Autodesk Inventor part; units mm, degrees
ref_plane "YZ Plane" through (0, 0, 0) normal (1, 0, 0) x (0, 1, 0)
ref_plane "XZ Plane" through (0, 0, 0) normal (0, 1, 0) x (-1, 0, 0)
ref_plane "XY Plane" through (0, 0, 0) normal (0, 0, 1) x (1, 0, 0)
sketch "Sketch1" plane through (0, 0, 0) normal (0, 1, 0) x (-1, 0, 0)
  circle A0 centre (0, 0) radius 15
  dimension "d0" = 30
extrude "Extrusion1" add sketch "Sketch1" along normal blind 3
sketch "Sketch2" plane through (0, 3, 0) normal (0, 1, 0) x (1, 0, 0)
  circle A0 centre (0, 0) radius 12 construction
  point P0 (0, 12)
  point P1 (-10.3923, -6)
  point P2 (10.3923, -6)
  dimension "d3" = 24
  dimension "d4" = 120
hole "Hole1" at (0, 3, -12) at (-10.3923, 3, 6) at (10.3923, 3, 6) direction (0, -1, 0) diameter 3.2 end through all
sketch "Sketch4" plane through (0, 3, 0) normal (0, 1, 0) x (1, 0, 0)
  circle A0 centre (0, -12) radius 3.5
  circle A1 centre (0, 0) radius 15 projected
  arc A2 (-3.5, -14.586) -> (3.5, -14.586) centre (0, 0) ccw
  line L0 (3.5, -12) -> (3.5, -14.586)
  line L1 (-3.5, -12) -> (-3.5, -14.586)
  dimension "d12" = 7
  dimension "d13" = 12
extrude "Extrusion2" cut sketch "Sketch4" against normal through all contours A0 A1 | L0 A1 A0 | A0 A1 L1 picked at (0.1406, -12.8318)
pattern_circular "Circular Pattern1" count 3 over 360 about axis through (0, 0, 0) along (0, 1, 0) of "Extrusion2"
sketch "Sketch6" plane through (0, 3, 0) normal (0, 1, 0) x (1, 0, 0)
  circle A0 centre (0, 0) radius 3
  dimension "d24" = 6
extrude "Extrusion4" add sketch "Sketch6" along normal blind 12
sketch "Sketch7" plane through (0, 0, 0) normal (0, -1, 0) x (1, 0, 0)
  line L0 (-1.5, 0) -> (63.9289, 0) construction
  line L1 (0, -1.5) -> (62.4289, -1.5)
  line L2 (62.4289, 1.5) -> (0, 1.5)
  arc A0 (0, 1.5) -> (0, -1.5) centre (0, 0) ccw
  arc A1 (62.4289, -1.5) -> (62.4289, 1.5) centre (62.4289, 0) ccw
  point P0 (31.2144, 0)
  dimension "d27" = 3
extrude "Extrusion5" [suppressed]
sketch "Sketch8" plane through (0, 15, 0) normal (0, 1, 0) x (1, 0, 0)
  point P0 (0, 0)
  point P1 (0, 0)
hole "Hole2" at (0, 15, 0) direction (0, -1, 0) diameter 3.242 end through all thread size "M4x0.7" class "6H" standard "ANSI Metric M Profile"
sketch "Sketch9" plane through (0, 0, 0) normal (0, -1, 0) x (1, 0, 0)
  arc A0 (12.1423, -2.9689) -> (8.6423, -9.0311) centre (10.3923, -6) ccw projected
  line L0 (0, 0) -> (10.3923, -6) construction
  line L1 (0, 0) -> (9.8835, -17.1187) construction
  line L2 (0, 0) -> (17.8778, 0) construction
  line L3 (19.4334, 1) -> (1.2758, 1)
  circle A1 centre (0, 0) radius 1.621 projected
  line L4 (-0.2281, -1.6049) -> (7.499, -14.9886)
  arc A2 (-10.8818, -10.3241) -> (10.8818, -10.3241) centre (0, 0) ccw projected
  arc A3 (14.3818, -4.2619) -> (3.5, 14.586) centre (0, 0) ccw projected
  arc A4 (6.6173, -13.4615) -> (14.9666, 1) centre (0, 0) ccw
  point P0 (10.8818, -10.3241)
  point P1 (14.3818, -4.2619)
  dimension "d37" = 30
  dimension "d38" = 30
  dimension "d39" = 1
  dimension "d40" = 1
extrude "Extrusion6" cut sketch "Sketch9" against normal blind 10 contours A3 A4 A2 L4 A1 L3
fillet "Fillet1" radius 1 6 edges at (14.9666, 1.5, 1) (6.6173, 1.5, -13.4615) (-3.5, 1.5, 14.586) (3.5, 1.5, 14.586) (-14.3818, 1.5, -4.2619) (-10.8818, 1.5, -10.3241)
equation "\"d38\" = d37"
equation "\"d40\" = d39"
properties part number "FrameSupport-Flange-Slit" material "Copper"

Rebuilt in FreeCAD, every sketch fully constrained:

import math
import FreeCAD as App
import Part
import Sketcher
Q = App.Units.Quantity


def edges_at(feature, points):
    """Names of the edges that pass closest to the given points."""
    edges = feature.Shape.Edges
    near = lambda p: min(range(len(edges)), key=lambda i: edges[i].distToShape(Part.Vertex(*p))[0])
    return sorted({f"Edge{near(p) + 1}" for p in points})

doc = App.newDocument("Part")
body = doc.addObject("PartDesign::Body", "Body")

sketch1 = doc.addObject("Sketcher::SketchObject", "Sketch")
body.addObject(sketch1)
sketch1.AttachmentSupport = (doc.XZ_Plane, [""])
sketch1.MapMode = "FlatFace"
sketch1.addGeometry(Part.Circle(App.Vector(0, 0, 0), App.Vector(0, 0, 1), 15), False)
sketch1.addConstraint([
    Sketcher.Constraint("Coincident", 0, 3, -1, 1),
    Sketcher.Constraint("Diameter", 0, 30.0),
])
pad1 = doc.addObject("PartDesign::Pad", "Pad")
body.addObject(pad1)
pad1.Profile = sketch1
pad1.Length = 3
pad1.Reversed = True

sketch2 = doc.addObject("Sketcher::SketchObject", "Sketch001")
body.addObject(sketch2)
sketch2.AttachmentSupport = (doc.XZ_Plane, [""])
sketch2.MapMode = "FlatFace"
sketch2.AttachmentOffset = App.Placement(App.Vector(0, 0, -3), App.Rotation())
sketch2.addGeometry([
    Part.Circle(App.Vector(0, -12, 0), App.Vector(0, 0, 1), 1.6),
    Part.Circle(App.Vector(-10.4, 6, 0), App.Vector(0, 0, 1), 1.6),
    Part.Circle(App.Vector(10.4, 6, 0), App.Vector(0, 0, 1), 1.6),
], False)
sketch2.addConstraint([
    Sketcher.Constraint("Equal", 0, 1),
    Sketcher.Constraint("Equal", 1, 2),
    Sketcher.Constraint("Symmetric", 1, 3, 2, 3, -2),
    Sketcher.Constraint("PointOnObject", 0, 3, -2),
    Sketcher.Constraint("Diameter", 0, 3.2),
    Sketcher.Constraint("DistanceY", 0, 3, -1, 1, 12.0),
    Sketcher.Constraint("DistanceY", -1, 1, 1, 3, 6.0),
    Sketcher.Constraint("DistanceX", 1, 3, -1, 1, 10.3923),
])
doc.recompute()
hole = doc.addObject("PartDesign::Hole", "Hole")
body.addObject(hole)
hole.Profile = sketch2
hole.ThreadType = "None"
hole.Diameter = 3.2
hole.DepthType = "ThroughAll"
hole.Reversed = True

sketch3 = doc.addObject("Sketcher::SketchObject", "Sketch002")
body.addObject(sketch3)
sketch3.AttachmentSupport = (doc.XZ_Plane, [""])
sketch3.MapMode = "FlatFace"
sketch3.AttachmentOffset = App.Placement(App.Vector(0, 0, -3), App.Rotation())
sketch3.addGeometry([
    Part.LineSegment(App.Vector(3.5, 14.6, 0), App.Vector(3.5, 12, 0)),
    Part.ArcOfCircle(Part.Circle(App.Vector(0, 12, 0), App.Vector(0, 0, 1), 3.5), math.radians(180), math.radians(360)),
    Part.LineSegment(App.Vector(-3.5, 12, 0), App.Vector(-3.5, 14.6, 0)),
    Part.ArcOfCircle(Part.Circle(App.Vector(0, 0, 0), App.Vector(0, 0, 1), 15), math.radians(77), math.radians(103)),
], False)
sketch3.addConstraint([
    Sketcher.Constraint("Tangent", 0, 2, 1, 2),
    Sketcher.Constraint("Tangent", 1, 1, 2, 1),
    Sketcher.Constraint("Coincident", 2, 2, 3, 2),
    Sketcher.Constraint("Coincident", 3, 1, 0, 1),
    Sketcher.Constraint("Vertical", 0),
    Sketcher.Constraint("Vertical", 2),
    Sketcher.Constraint("Coincident", 3, 3, -1, 1),
    Sketcher.Constraint("PointOnObject", 1, 3, -2),
    Sketcher.Constraint("Radius", 1, 3.5),
    Sketcher.Constraint("DistanceY", -1, 1, 1, 3, 12.0),
    Sketcher.Constraint("Radius", 3, 15.0),
])
pocket1 = doc.addObject("PartDesign::Pocket", "Pocket")
body.addObject(pocket1)
pocket1.Profile = sketch3
pocket1.Type = "ThroughAll"
pocket1.Reversed = True
doc.recompute()

polarpattern = doc.addObject("PartDesign::PolarPattern", "PolarPattern")
body.addObject(polarpattern)
polarpattern.Originals = [pocket1]
polarpattern.Axis = (doc.Y_Axis, [""])
polarpattern.Angle = 360
polarpattern.Occurrences = 3
body.Tip = polarpattern

sketch4 = doc.addObject("Sketcher::SketchObject", "Sketch003")
body.addObject(sketch4)
sketch4.AttachmentSupport = (doc.XZ_Plane, [""])
sketch4.MapMode = "FlatFace"
sketch4.AttachmentOffset = App.Placement(App.Vector(0, 0, -3), App.Rotation())
sketch4.addGeometry(Part.Circle(App.Vector(0, 0, 0), App.Vector(0, 0, 1), 3), False)
sketch4.addConstraint([
    Sketcher.Constraint("Coincident", 0, 3, -1, 1),
    Sketcher.Constraint("Diameter", 0, 6.0),
])
pad2 = doc.addObject("PartDesign::Pad", "Pad001")
body.addObject(pad2)
pad2.Profile = sketch4
pad2.Length = 12
pad2.Reversed = True

sketch5 = doc.addObject("Sketcher::SketchObject", "Sketch004")
body.addObject(sketch5)
sketch5.AttachmentSupport = (doc.XZ_Plane, [""])
sketch5.MapMode = "FlatFace"
sketch5.AttachmentOffset = App.Placement(App.Vector(0, 0, -15), App.Rotation())
sketch5.addGeometry(Part.Circle(App.Vector(0, 0, 0), App.Vector(0, 0, 1), 1.6), False)
sketch5.addConstraint([
    Sketcher.Constraint("Coincident", 0, 3, -1, 1),
    Sketcher.Constraint("Diameter", 0, 3.242),
])
doc.recompute()
hole2 = doc.addObject("PartDesign::Hole", "Hole001")
body.addObject(hole2)
hole2.Profile = sketch5
hole2.ThreadType = "None"
hole2.Diameter = 3.242
hole2.DepthType = "ThroughAll"
hole2.Reversed = True

sketch6 = doc.addObject("Sketcher::SketchObject", "Sketch005")
body.addObject(sketch6)
sketch6.AttachmentSupport = (doc.XZ_Plane, [""])
sketch6.MapMode = "FlatFace"
sketch6.addGeometry([
    Part.ArcOfCircle(Part.Circle(App.Vector(0, 0, 0), App.Vector(0, 0, 1), 15), math.radians(-17), math.radians(4)),
    Part.LineSegment(App.Vector(15, 1, 0), App.Vector(1.3, 1, 0)),
    Part.ArcOfCircle(Part.Circle(App.Vector(0, 0, 0), App.Vector(0, 0, 1), 1.6), math.radians(-98), math.radians(38)),
    Part.LineSegment(App.Vector(-0.2, -1.6, 0), App.Vector(6.6, -13.5, 0)),
    Part.ArcOfCircle(Part.Circle(App.Vector(0, 0, 0), App.Vector(0, 0, 1), 15), math.radians(-64), math.radians(-43)),
    Part.ArcOfCircle(Part.Circle(App.Vector(0, 0, 0), App.Vector(0, 0, 1), 15), math.radians(-43), math.radians(-17)),
], False)
sketch6.addConstraint([
    Sketcher.Constraint("Coincident", 0, 2, 1, 1),
    Sketcher.Constraint("Coincident", 1, 2, 2, 2),
    Sketcher.Constraint("Coincident", 2, 1, 3, 1),
    Sketcher.Constraint("Coincident", 3, 2, 4, 1),
    Sketcher.Constraint("Tangent", 4, 2, 5, 1),
    Sketcher.Constraint("Tangent", 5, 2, 0, 1),
    Sketcher.Constraint("Horizontal", 1),
    Sketcher.Constraint("Coincident", 0, 3, -1, 1),
    Sketcher.Constraint("Coincident", 2, 3, -1, 1),
    Sketcher.Constraint("Coincident", 4, 3, -1, 1),
    Sketcher.Constraint("Radius", 0, 15.0),
    Sketcher.Constraint("DistanceY", -1, 1, 0, 2, 1.0),
    Sketcher.Constraint("Angle", 3, Q("-60 deg")),
    Sketcher.Constraint("Radius", 2, 1.621),
    Sketcher.Constraint("DistanceX", 4, 2, 5, 2, 3.5),
    Sketcher.Constraint("DistanceX", 2, 1, 4, 2, 11.11),
    Sketcher.Constraint("DistanceX", 2, 1, -1, 1, 0.228),
])
pocket2 = doc.addObject("PartDesign::Pocket", "Pocket001")
body.addObject(pocket2)
pocket2.Profile = sketch6
pocket2.Length = 10
doc.recompute()

fillet = doc.addObject("PartDesign::Fillet", "Fillet")
body.addObject(fillet)
fillet.Base = (pocket2, edges_at(pocket2, [
    (14.967, 1.5, 1),
    (6.617, 1.5, -13.461),
    (-3.5, 1.5, 14.586),
    (3.5, 1.5, 14.586),
    (-14.382, 1.5, -4.262),
    (-10.882, 1.5, -10.324),
]))
fillet.Radius = 1

doc.recompute()
